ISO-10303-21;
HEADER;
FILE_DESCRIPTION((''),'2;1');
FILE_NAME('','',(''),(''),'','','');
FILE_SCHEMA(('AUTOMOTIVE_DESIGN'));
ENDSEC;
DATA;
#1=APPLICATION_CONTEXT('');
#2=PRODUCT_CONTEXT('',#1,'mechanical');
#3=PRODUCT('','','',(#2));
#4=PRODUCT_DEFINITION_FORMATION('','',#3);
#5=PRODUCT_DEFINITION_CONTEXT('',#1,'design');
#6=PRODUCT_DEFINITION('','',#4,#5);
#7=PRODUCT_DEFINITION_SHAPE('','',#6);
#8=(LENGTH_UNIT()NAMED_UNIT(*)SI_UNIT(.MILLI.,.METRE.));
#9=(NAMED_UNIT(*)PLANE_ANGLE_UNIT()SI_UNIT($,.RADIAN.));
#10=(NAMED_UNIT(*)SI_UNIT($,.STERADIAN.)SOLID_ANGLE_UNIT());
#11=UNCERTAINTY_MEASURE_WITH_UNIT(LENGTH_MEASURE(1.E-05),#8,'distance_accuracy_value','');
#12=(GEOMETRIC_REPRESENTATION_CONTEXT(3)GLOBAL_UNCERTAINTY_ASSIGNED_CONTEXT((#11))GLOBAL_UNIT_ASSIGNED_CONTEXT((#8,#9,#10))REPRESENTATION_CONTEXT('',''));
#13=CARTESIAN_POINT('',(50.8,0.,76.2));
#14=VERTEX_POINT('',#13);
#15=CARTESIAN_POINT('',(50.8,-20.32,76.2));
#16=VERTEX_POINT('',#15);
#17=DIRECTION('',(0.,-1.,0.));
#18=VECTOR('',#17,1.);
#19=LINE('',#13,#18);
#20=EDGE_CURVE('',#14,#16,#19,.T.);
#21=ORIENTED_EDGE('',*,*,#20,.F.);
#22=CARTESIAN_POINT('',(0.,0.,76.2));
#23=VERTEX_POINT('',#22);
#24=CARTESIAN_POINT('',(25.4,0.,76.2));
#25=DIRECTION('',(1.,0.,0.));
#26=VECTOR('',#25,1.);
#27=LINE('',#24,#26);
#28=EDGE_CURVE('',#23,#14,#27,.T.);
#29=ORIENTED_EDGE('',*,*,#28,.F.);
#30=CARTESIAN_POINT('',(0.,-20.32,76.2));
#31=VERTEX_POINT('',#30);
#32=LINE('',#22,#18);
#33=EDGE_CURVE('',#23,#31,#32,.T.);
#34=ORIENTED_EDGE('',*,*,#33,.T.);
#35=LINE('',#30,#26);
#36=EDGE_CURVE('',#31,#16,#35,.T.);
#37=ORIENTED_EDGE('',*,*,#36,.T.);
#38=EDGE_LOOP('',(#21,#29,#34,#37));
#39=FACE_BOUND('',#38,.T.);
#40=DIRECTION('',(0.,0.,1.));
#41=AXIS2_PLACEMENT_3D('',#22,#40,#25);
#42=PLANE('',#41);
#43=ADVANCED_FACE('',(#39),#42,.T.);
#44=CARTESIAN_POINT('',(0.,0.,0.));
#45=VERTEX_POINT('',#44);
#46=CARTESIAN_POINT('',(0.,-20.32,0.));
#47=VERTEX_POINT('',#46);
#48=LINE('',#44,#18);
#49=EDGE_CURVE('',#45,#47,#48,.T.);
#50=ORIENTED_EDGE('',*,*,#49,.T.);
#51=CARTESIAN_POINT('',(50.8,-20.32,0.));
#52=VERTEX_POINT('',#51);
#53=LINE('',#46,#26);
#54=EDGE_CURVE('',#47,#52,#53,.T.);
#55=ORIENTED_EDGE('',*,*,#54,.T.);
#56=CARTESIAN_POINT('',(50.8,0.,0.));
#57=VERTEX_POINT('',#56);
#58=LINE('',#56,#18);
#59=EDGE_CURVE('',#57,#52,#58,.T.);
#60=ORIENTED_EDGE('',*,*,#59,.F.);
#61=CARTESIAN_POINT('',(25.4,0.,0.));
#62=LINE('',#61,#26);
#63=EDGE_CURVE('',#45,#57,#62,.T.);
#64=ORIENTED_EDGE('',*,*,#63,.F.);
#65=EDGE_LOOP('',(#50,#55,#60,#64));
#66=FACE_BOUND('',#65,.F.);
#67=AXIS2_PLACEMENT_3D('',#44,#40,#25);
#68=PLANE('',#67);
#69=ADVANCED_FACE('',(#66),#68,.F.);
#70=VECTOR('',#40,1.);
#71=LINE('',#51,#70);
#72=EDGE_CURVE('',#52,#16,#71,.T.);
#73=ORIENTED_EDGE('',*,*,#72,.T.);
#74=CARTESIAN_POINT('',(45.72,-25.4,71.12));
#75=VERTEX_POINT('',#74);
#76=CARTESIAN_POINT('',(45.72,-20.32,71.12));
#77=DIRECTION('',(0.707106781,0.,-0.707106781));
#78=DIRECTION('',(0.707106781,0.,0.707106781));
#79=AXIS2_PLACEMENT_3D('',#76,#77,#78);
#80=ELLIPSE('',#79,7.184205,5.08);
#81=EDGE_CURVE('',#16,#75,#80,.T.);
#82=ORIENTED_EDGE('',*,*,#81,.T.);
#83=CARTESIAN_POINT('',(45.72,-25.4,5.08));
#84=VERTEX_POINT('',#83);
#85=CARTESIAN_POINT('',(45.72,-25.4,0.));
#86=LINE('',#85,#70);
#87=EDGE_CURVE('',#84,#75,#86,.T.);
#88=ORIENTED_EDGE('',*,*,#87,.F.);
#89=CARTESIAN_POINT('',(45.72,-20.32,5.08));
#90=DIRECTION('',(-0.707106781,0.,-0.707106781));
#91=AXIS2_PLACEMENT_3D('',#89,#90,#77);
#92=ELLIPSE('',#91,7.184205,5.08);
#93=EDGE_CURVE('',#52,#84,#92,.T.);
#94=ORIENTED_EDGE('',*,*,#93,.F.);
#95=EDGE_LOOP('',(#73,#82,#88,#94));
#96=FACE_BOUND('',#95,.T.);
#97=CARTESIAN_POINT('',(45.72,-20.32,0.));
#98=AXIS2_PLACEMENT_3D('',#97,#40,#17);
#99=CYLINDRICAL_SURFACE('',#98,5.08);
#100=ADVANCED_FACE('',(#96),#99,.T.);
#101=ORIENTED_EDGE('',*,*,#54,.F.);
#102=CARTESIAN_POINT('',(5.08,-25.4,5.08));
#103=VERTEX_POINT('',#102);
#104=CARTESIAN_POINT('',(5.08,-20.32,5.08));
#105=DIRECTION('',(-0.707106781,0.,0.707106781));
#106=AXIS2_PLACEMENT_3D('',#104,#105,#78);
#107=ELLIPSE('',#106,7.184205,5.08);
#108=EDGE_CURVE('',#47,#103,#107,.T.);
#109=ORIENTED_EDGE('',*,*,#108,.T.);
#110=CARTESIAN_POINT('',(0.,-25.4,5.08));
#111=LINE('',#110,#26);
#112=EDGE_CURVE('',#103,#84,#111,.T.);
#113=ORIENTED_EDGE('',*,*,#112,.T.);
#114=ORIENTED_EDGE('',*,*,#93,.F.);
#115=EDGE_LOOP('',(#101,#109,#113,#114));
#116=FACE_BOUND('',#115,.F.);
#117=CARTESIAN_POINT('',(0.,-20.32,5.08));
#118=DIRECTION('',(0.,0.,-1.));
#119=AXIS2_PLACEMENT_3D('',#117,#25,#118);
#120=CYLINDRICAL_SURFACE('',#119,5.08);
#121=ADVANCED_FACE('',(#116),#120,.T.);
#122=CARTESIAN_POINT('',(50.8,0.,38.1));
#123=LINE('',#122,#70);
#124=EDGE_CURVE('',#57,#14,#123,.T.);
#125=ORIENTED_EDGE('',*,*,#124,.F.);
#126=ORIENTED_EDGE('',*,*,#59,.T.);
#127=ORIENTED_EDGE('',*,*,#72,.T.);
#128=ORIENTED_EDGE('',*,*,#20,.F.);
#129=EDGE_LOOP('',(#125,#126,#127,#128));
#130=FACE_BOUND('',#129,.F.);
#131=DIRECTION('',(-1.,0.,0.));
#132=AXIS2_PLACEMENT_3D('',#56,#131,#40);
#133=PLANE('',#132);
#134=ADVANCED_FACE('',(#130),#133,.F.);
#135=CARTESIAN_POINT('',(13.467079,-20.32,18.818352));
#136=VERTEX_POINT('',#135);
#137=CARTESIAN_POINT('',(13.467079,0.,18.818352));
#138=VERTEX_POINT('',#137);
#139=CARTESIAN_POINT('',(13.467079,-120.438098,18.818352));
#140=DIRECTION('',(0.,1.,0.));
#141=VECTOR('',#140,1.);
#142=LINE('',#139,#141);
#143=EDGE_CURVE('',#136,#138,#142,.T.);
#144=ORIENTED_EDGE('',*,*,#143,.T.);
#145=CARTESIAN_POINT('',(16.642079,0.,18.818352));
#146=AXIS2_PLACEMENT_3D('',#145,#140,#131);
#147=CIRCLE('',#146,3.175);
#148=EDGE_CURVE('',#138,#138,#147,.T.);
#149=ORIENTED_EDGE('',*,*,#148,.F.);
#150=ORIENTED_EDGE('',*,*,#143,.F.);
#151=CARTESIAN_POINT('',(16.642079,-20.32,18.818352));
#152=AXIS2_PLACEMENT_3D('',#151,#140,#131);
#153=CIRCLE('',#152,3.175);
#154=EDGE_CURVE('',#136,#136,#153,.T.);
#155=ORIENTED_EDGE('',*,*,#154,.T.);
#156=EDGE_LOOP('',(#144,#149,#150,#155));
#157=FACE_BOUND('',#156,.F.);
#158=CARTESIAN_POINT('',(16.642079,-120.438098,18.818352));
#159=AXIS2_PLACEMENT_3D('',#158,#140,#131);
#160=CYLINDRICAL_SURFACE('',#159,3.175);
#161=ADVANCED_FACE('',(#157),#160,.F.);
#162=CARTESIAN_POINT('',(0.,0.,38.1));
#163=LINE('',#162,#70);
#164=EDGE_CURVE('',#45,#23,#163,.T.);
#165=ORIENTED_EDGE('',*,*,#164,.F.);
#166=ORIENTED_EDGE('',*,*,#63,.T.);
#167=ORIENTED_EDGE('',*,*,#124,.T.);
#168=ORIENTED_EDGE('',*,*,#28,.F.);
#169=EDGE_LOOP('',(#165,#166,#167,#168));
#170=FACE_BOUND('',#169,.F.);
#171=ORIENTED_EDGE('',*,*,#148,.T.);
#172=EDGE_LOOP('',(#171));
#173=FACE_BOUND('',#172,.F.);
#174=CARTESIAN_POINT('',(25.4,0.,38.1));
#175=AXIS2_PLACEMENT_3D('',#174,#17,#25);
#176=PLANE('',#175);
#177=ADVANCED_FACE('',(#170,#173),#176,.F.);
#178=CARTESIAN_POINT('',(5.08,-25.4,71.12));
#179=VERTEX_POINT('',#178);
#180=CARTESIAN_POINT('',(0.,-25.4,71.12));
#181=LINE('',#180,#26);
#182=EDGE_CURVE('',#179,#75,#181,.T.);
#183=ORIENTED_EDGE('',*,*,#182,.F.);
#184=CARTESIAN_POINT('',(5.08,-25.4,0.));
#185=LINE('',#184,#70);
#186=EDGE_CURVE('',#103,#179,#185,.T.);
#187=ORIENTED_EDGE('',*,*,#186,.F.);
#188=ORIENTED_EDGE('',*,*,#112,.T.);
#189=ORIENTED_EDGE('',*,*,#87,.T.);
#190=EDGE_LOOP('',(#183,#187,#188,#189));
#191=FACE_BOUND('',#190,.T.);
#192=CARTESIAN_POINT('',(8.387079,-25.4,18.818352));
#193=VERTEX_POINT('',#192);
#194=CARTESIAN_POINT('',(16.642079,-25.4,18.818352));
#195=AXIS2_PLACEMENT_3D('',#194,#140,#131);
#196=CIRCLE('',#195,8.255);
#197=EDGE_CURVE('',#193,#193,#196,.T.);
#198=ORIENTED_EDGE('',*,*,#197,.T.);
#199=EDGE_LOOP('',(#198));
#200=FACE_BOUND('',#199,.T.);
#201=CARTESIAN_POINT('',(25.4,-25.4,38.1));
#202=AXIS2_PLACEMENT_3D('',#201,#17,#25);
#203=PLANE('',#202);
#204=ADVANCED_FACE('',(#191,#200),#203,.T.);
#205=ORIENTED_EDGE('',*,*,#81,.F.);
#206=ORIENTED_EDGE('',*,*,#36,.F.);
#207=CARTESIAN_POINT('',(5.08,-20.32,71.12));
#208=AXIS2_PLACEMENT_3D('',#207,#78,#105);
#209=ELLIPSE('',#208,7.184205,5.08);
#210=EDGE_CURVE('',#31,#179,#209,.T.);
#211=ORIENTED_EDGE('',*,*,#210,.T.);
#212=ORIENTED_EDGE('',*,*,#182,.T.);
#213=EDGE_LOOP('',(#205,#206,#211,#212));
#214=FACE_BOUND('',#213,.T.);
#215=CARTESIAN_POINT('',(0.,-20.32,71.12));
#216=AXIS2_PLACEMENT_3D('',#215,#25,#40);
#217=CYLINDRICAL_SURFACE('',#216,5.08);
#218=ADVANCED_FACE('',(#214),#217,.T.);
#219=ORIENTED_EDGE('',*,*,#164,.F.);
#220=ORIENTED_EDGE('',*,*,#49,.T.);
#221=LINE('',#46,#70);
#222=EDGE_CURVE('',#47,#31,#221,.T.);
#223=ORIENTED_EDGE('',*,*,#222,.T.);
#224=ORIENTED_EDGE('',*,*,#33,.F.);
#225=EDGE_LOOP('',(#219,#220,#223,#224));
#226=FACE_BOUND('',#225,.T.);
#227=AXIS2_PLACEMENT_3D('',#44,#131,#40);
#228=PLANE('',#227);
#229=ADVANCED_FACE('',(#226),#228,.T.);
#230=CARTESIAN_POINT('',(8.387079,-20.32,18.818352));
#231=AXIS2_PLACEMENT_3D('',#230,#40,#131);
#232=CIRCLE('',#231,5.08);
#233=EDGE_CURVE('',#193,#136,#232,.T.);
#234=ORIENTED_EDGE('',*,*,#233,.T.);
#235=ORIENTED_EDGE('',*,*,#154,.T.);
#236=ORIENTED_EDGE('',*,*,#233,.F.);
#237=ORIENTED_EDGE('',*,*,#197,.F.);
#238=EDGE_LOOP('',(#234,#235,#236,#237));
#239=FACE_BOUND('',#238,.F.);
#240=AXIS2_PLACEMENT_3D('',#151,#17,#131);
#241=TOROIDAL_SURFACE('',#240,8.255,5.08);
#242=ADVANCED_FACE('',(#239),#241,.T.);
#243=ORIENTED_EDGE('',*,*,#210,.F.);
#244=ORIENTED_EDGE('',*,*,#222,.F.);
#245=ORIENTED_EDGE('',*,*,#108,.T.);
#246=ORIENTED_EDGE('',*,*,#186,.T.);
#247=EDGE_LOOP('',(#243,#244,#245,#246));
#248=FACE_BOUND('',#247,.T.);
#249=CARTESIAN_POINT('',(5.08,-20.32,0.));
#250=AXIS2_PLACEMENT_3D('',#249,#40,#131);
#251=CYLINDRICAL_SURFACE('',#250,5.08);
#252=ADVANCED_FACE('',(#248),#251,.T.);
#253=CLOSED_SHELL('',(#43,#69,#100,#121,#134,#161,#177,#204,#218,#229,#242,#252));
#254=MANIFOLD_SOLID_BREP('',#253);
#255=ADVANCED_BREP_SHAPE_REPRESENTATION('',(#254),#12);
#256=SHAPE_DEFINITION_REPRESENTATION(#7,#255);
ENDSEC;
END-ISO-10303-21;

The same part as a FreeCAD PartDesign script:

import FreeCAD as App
import Part
import Sketcher
from FreeCAD import Vector
Q = App.Units.Quantity


def edges_at(feature, points):
    """Names of the edges that pass closest to the given points."""
    edges = feature.Shape.Edges
    near = lambda p: min(range(len(edges)), key=lambda i: edges[i].distToShape(Part.Vertex(*p))[0])
    return sorted({f"Edge{near(p) + 1}" for p in points})

doc = App.newDocument("Part")
body = doc.addObject("PartDesign::Body", "Body")

sketch1 = body.newObject("Sketcher::SketchObject", "Sketch")
sketch1.AttachmentSupport = (doc.getObject("XZ_Plane"), [""])
sketch1.MapMode = "FlatFace"
sketch1.addGeometry([
    Part.LineSegment(Vector(0, 76.2, 0), Vector(0, 0, 0)),
    Part.LineSegment(Vector(0, 0, 0), Vector(50.8, 0, 0)),
    Part.LineSegment(Vector(50.8, 0, 0), Vector(50.8, 76.2, 0)),
    Part.LineSegment(Vector(50.8, 76.2, 0), Vector(0, 76.2, 0)),
], False)
sketch1.addConstraint([
    Sketcher.Constraint("Coincident", 0, 2, 1, 1),
    Sketcher.Constraint("Coincident", 1, 2, 2, 1),
    Sketcher.Constraint("Coincident", 2, 2, 3, 1),
    Sketcher.Constraint("Coincident", 3, 2, 0, 1),
    Sketcher.Constraint("Vertical", 0),
    Sketcher.Constraint("Horizontal", 1),
    Sketcher.Constraint("Vertical", 2),
    Sketcher.Constraint("Horizontal", 3),
    Sketcher.Constraint("Coincident", 0, 2, -1, 1),
    Sketcher.Constraint("DistanceX", 1, 1, 1, 2, Q("2 in")),
    Sketcher.Constraint("DistanceY", 0, 2, 0, 1, Q("3 in")),
])
pad1 = body.newObject("PartDesign::Pad", "Pad")
pad1.Profile = sketch1
pad1.Length = Q("1 in")

sketch2 = body.newObject("Sketcher::SketchObject", "Sketch001")
sketch2.AttachmentSupport = (doc.getObject("XZ_Plane"), [""])
sketch2.MapMode = "FlatFace"
sketch2.AttachmentOffset = App.Placement(Vector(0, 0, 1 * 25.4), App.Rotation())
sketch2.addGeometry(Part.Circle(Vector(16.642079, 18.818352, 0), Vector(0, 0, 1), 3.175), False)
sketch2.addConstraint([
    Sketcher.Constraint("Diameter", 0, Q("0.25 in")),
    Sketcher.Constraint("DistanceX", -1, 1, 0, 3, Q("0.6552 in")),
    Sketcher.Constraint("DistanceY", -1, 1, 0, 3, 18.818352),
])
doc.recompute()
hole = body.newObject("PartDesign::Hole", "Hole")
hole.Profile = sketch2
hole.ThreadType = "None"
hole.Diameter = Q("0.25 in")
hole.DepthType = "ThroughAll"
doc.recompute()

fillet = body.newObject("PartDesign::Fillet", "Fillet")
fillet.Base = (hole, edges_at(hole, [
    (0, -25.4, 38.1),
    (25.4, -25.4, 76.2),
    (25.4, -25.4, 0),
    (50.8, -25.4, 38.1),
    (19.817, -25.4, 18.818),
]))
fillet.Radius = Q("0.2 in")

doc.recompute()
